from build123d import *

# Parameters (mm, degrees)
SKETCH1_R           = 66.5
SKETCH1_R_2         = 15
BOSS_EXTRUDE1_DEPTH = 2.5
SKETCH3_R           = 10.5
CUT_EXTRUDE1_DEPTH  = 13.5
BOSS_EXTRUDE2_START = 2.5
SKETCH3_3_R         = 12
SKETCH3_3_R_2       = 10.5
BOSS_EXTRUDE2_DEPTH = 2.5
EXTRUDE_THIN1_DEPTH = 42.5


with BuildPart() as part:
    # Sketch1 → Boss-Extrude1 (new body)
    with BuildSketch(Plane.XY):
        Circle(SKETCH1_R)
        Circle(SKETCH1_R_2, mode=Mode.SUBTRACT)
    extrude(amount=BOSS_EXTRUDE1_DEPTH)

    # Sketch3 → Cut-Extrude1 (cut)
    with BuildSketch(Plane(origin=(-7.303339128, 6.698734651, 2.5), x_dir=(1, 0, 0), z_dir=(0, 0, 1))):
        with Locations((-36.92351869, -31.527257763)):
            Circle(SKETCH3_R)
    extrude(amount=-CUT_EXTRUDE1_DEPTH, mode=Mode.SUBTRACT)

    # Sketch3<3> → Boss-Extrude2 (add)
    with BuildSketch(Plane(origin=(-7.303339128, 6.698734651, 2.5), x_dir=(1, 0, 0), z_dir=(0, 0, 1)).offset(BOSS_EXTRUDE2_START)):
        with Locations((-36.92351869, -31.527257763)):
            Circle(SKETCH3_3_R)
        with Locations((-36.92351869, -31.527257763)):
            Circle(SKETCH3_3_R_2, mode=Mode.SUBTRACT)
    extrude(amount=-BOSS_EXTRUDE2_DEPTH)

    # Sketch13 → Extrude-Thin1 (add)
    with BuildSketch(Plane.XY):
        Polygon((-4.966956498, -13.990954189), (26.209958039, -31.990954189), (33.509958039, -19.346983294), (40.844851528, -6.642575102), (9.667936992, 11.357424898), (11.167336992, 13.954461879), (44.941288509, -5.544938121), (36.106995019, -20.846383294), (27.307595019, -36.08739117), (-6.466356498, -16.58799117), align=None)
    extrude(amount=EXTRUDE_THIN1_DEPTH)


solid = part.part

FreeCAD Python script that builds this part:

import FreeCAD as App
import Part
import Sketcher

V = App.Vector
Q = App.Units.Quantity

doc = App.newDocument("Part")
body = doc.addObject("PartDesign::Body", "Body")

sketch1 = body.newObject("Sketcher::SketchObject", "Sketch")
sketch1.AttachmentSupport = (doc.getObject("XY_Plane"), [""])
sketch1.MapMode = "FlatFace"
sketch1.addGeometry(Part.Circle(V(0, 0, 0), V(0, 0, 1), 66), False)
sketch1.addGeometry(Part.Circle(V(0, 0, 0), V(0, 0, 1), 15), False)
sketch1.addConstraint(Sketcher.Constraint("Coincident", 0, 3, -1, 1))
sketch1.addConstraint(Sketcher.Constraint("Coincident", 1, 3, -1, 1))
sketch1.addConstraint(Sketcher.Constraint("Diameter", 0, 133.0))
sketch1.addConstraint(Sketcher.Constraint("Diameter", 1, 30.0))
pad1 = body.newObject("PartDesign::Pad", "Pad")
pad1.Profile = sketch1
pad1.Length = 2.5

sketch2 = body.newObject("Sketcher::SketchObject", "Sketch001")
sketch2.AttachmentSupport = (doc.getObject("XY_Plane"), [""])
sketch2.MapMode = "FlatFace"
sketch2.AttachmentOffset = App.Placement(V(0, 0, 2.5), App.Rotation())
sketch2.addGeometry(Part.Circle(V(-44, -25, 0), V(0, 0, 1), 10), False)
sketch2.addConstraint(Sketcher.Constraint("Diameter", 0, 21.0))
sketch2.addConstraint(Sketcher.Constraint("DistanceX", 0, 3, -1, 1, 44.226858))
sketch2.addConstraint(Sketcher.Constraint("DistanceY", 0, 3, -1, 1, 24.828523))
pocket1 = body.newObject("PartDesign::Pocket", "Pocket")
pocket1.Profile = sketch2
pocket1.Length = 13.5

sketch3 = body.newObject("Sketcher::SketchObject", "Sketch002")
sketch3.AttachmentSupport = (doc.getObject("XY_Plane"), [""])
sketch3.MapMode = "FlatFace"
sketch3.AttachmentOffset = App.Placement(V(0, 0, 5), App.Rotation())
sketch3.addGeometry(Part.Circle(V(-44, -25, 0), V(0, 0, 1), 12), False)
sketch3.addGeometry(Part.Circle(V(-44, -25, 0), V(0, 0, 1), 10), False)
sketch3.addConstraint(Sketcher.Constraint("Coincident", 1, 3, 0, 3))
sketch3.addConstraint(Sketcher.Constraint("Diameter", 0, 24.0))
sketch3.addConstraint(Sketcher.Constraint("Diameter", 1, 21.0))
sketch3.addConstraint(Sketcher.Constraint("DistanceX", 0, 3, -1, 1, 44.226858))
sketch3.addConstraint(Sketcher.Constraint("DistanceY", 0, 3, -1, 1, 24.828523))
pad2 = body.newObject("PartDesign::Pad", "Pad001")
pad2.Profile = sketch3
pad2.Length = 2.5
pad2.Reversed = True

sketch4 = body.newObject("Sketcher::SketchObject", "Sketch003")
sketch4.AttachmentSupport = (doc.getObject("XY_Plane"), [""])
sketch4.MapMode = "FlatFace"
sketch4.addGeometry(Part.LineSegment(V(26.2, -32, 0), V(-5, -14, 0)), False)
sketch4.addGeometry(Part.LineSegment(V(-5, -14, 0), V(-6.5, -16.6, 0)), False)
sketch4.addGeometry(Part.LineSegment(V(-6.5, -16.6, 0), V(27.3, -36.1, 0)), False)
sketch4.addGeometry(Part.LineSegment(V(27.3, -36.1, 0), V(36.1, -20.8, 0)), False)
sketch4.addGeometry(Part.LineSegment(V(36.1, -20.8, 0), V(44.9, -5.5, 0)), False)
sketch4.addGeometry(Part.LineSegment(V(44.9, -5.5, 0), V(11.2, 14, 0)), False)
sketch4.addGeometry(Part.LineSegment(V(11.2, 14, 0), V(9.7, 11.4, 0)), False)
sketch4.addGeometry(Part.LineSegment(V(9.7, 11.4, 0), V(40.8, -6.6, 0)), False)
sketch4.addGeometry(Part.LineSegment(V(40.8, -6.6, 0), V(33.5, -19.3, 0)), False)
sketch4.addGeometry(Part.LineSegment(V(33.5, -19.3, 0), V(26.2, -32, 0)), False)
sketch4.addConstraint(Sketcher.Constraint("Coincident", 0, 2, 1, 1))
sketch4.addConstraint(Sketcher.Constraint("Coincident", 1, 2, 2, 1))
sketch4.addConstraint(Sketcher.Constraint("Coincident", 2, 2, 3, 1))
sketch4.addConstraint(Sketcher.Constraint("Coincident", 3, 2, 4, 1))
sketch4.addConstraint(Sketcher.Constraint("Coincident", 4, 2, 5, 1))
sketch4.addConstraint(Sketcher.Constraint("Coincident", 5, 2, 6, 1))
sketch4.addConstraint(Sketcher.Constraint("Coincident", 6, 2, 7, 1))
sketch4.addConstraint(Sketcher.Constraint("Coincident", 7, 2, 8, 1))
sketch4.addConstraint(Sketcher.Constraint("Coincident", 8, 2, 9, 1))
sketch4.addConstraint(Sketcher.Constraint("Coincident", 9, 2, 0, 1))
sketch4.addConstraint(Sketcher.Constraint("Perpendicular", 0, 1))
sketch4.addConstraint(Sketcher.Constraint("Perpendicular", 1, 2))
sketch4.addConstraint(Sketcher.Constraint("Perpendicular", 2, 3))
sketch4.addConstraint(Sketcher.Constraint("Parallel", 3, 4))
sketch4.addConstraint(Sketcher.Constraint("Perpendicular", 4, 5))
sketch4.addConstraint(Sketcher.Constraint("Perpendicular", 5, 6))
sketch4.addConstraint(Sketcher.Constraint("Perpendicular", 6, 7))
sketch4.addConstraint(Sketcher.Constraint("Perpendicular", 7, 8))
sketch4.addConstraint(Sketcher.Constraint("Parallel", 8, 9))
sketch4.addConstraint(Sketcher.Constraint("Equal", 2, 5))
sketch4.addConstraint(Sketcher.Constraint("Equal", 1, 6))
sketch4.addConstraint(Sketcher.Constraint("Angle", 0, Q("150 deg")))
sketch4.addConstraint(Sketcher.Constraint("Distance", 0, 36.0))
sketch4.addConstraint(Sketcher.Constraint("Distance", 9, 14.6))
sketch4.addConstraint(Sketcher.Constraint("Distance", 1, 2.9988))
sketch4.addConstraint(Sketcher.Constraint("Distance", 2, 38.9988))
sketch4.addConstraint(Sketcher.Constraint("Distance", 3, 17.5988))
sketch4.addConstraint(Sketcher.Constraint("DistanceY", 1, 2, -1, 1, 16.587991))
sketch4.addConstraint(Sketcher.Constraint("DistanceX", -1, 1, 4, 2, 44.941289))
sketch4.addConstraint(Sketcher.Constraint("DistanceY", 4, 2, -1, 1, 5.544938))
pad3 = body.newObject("PartDesign::Pad", "Pad002")
pad3.Profile = sketch4
pad3.Length = 42.5

doc.recompute()
